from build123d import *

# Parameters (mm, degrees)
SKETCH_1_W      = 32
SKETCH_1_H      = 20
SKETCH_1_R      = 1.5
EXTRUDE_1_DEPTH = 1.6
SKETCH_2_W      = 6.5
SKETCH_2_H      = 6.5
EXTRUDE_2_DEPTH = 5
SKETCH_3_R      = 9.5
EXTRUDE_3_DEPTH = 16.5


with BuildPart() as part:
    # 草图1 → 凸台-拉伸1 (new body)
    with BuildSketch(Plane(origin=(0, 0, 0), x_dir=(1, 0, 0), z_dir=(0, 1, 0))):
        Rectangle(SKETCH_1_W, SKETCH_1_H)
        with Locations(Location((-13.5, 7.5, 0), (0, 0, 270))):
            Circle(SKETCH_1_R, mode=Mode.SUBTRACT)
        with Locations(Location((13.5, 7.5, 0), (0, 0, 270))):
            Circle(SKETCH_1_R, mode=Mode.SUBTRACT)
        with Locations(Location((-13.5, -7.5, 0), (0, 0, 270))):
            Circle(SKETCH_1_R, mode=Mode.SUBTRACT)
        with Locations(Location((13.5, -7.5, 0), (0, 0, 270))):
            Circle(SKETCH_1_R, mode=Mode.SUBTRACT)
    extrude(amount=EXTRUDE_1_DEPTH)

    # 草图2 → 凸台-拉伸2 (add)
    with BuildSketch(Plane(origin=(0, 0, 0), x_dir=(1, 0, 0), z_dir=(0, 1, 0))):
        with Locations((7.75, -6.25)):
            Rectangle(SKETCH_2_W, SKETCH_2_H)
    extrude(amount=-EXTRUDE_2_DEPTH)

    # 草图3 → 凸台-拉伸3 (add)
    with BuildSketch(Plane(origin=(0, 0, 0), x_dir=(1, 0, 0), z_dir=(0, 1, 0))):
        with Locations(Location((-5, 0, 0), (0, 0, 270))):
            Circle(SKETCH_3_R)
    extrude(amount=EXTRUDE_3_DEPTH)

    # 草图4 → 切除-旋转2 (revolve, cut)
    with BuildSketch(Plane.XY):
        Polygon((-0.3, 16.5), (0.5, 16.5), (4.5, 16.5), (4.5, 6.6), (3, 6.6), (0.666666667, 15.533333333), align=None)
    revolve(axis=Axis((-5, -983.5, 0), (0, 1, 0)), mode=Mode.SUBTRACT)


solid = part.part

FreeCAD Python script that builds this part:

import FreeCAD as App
import Part
import Sketcher
Q = App.Units.Quantity


def add_polygon(sketch, points):
    """Adds a closed chain of lines whose ends are joined by coincident constraints."""
    first, n = sketch.GeometryCount, len(points)
    for a, b in zip(points, points[1:] + points[:1]):
        sketch.addGeometry(Part.LineSegment(App.Vector(*a, 0), App.Vector(*b, 0)), False)
    for i in range(n):
        sketch.addConstraint(Sketcher.Constraint("Coincident", first + i, 2, first + (i + 1) % n, 1))

doc = App.newDocument("Part")
body = doc.addObject("PartDesign::Body", "Body")

# Sketch on XZ plane
sketch1 = body.newObject("Sketcher::SketchObject", "Sketch")
sketch1.AttachmentSupport = (doc.getObject("XZ_Plane"), [""])
sketch1.MapMode = "FlatFace"
add_polygon(sketch1, [(-16, -10), (-16, 10), (16, 10), (16, -10)])  # lines 0-3
sketch1.addGeometry(Part.Circle(App.Vector(-13.5, 7.5, 0), App.Vector(0, 0, 1), 1.5), False)  # 4
sketch1.addGeometry(Part.Circle(App.Vector(13.5, 7.5, 0), App.Vector(0, 0, 1), 1.5), False)  # 5
sketch1.addGeometry(Part.Circle(App.Vector(-13.5, -7.5, 0), App.Vector(0, 0, 1), 1.5), False)  # 6
sketch1.addGeometry(Part.Circle(App.Vector(13.5, -7.5, 0), App.Vector(0, 0, 1), 1.5), False)  # 7
sketch1.addConstraint(Sketcher.Constraint("Vertical", 0))
sketch1.addConstraint(Sketcher.Constraint("Horizontal", 1))
sketch1.addConstraint(Sketcher.Constraint("Vertical", 2))
sketch1.addConstraint(Sketcher.Constraint("Horizontal", 3))
sketch1.addConstraint(Sketcher.Constraint("Equal", 4, 5))
sketch1.addConstraint(Sketcher.Constraint("Equal", 5, 6))
sketch1.addConstraint(Sketcher.Constraint("Equal", 6, 7))
sketch1.addConstraint(Sketcher.Constraint("Symmetric", 5, 3, 6, 3, -1, 1))
sketch1.addConstraint(Sketcher.Constraint("Symmetric", 4, 3, 7, 3, -1, 1))
sketch1.addConstraint(Sketcher.Constraint("Symmetric", 0, 2, 2, 2, -1, 1))
sketch1.addConstraint(Sketcher.Constraint("Symmetric", 4, 3, 5, 3, -2))
sketch1.addConstraint(Sketcher.Constraint("Diameter", 4, 3.0))
sketch1.addConstraint(Sketcher.Constraint("DistanceX", 1, 1, 1, 2, 32.0))
sketch1.addConstraint(Sketcher.Constraint("DistanceY", 0, 1, 0, 2, 20.0))
sketch1.addConstraint(Sketcher.Constraint("DistanceX", 4, 3, 5, 3, 27.0))
sketch1.addConstraint(Sketcher.Constraint("DistanceY", 6, 3, 4, 3, 15.0))
pad1 = body.newObject("PartDesign::Pad", "Pad")
pad1.Profile = sketch1
pad1.Length = 1.6
pad1.Reversed = True

# Sketch on XZ plane
sketch2 = body.newObject("Sketcher::SketchObject", "Sketch001")
sketch2.AttachmentSupport = (doc.getObject("XZ_Plane"), [""])
sketch2.MapMode = "FlatFace"
add_polygon(sketch2, [(4, 3), (4, 10), (11, 10), (11, 3)])  # lines 0-3
sketch2.addConstraint(Sketcher.Constraint("Vertical", 0))
sketch2.addConstraint(Sketcher.Constraint("Horizontal", 1))
sketch2.addConstraint(Sketcher.Constraint("Vertical", 2))
sketch2.addConstraint(Sketcher.Constraint("Horizontal", 3))
sketch2.addConstraint(Sketcher.Constraint("Equal", 3, 0))
sketch2.addConstraint(Sketcher.Constraint("DistanceX", 1, 1, 1, 2, 6.5))
sketch2.addConstraint(Sketcher.Constraint("DistanceX", -1, 1, 1, 2, 11.0))
sketch2.addConstraint(Sketcher.Constraint("DistanceY", -1, 1, 2, 2, 3.0))
pad2 = body.newObject("PartDesign::Pad", "Pad001")
pad2.Profile = sketch2
pad2.Length = 5

# Sketch on XZ plane
sketch3 = body.newObject("Sketcher::SketchObject", "Sketch002")
sketch3.AttachmentSupport = (doc.getObject("XZ_Plane"), [""])
sketch3.MapMode = "FlatFace"
sketch3.addGeometry(Part.Circle(App.Vector(-5, 0, 0), App.Vector(0, 0, 1), 10), False)
sketch3.addConstraint(Sketcher.Constraint("PointOnObject", 0, 3, -1))
sketch3.addConstraint(Sketcher.Constraint("Diameter", 0, 19.0))
sketch3.addConstraint(Sketcher.Constraint("DistanceX", 0, 3, -1, 1, 5.0))
pad3 = body.newObject("PartDesign::Pad", "Pad002")
pad3.Profile = sketch3
pad3.Length = 16.5
pad3.Reversed = True

# Sketch on XY plane
sketch4 = body.newObject("Sketcher::SketchObject", "Sketch003")
sketch4.AttachmentSupport = (doc.getObject("XY_Plane"), [""])
sketch4.MapMode = "FlatFace"
add_polygon(sketch4, [(4.5, 16.5), (-0.3, 16.5), (0.7, 15.5), (3, 6.6), (4.5, 6.6)])  # lines 0-4
sketch4.addGeometry(Part.LineSegment(App.Vector(-5, 6.6, 0), App.Vector(-5, 16.5, 0)), True)  # axis
sketch4.addConstraint(Sketcher.Constraint("Horizontal", 0))
sketch4.addConstraint(Sketcher.Constraint("Horizontal", 3))
sketch4.addConstraint(Sketcher.Constraint("Vertical", 4))
sketch4.addConstraint(Sketcher.Constraint("Vertical", 5))
sketch4.addConstraint(Sketcher.Constraint("Horizontal", 3, 2, 5, 1))
sketch4.addConstraint(Sketcher.Constraint("Horizontal", 4, 2, 5, 2))
sketch4.addConstraint(Sketcher.Constraint("Angle", 1, Q("-45 deg")))
sketch4.addConstraint(Sketcher.Constraint("DistanceX", 0, 2, 0, 1, 4.8))
sketch4.addConstraint(Sketcher.Constraint("DistanceX", 3, 1, 3, 2, 1.5))
sketch4.addConstraint(Sketcher.Constraint("DistanceY", 4, 1, 4, 2, 9.9))
sketch4.addConstraint(Sketcher.Constraint("DistanceX", -1, 1, 2, 2, 3.0))
sketch4.addConstraint(Sketcher.Constraint("DistanceX", 5, 1, -1, 1, 5.0))
sketch4.addConstraint(Sketcher.Constraint("DistanceY", -1, 1, 0, 2, 16.5))
sketch4.addConstraint(Sketcher.Constraint("Distance", 1, 1.367073))
groove = body.newObject("PartDesign::Groove", "Groove")
groove.Profile = sketch4
groove.ReferenceAxis = (sketch4, ["Axis0"])
groove.Angle = 360

doc.recompute()
